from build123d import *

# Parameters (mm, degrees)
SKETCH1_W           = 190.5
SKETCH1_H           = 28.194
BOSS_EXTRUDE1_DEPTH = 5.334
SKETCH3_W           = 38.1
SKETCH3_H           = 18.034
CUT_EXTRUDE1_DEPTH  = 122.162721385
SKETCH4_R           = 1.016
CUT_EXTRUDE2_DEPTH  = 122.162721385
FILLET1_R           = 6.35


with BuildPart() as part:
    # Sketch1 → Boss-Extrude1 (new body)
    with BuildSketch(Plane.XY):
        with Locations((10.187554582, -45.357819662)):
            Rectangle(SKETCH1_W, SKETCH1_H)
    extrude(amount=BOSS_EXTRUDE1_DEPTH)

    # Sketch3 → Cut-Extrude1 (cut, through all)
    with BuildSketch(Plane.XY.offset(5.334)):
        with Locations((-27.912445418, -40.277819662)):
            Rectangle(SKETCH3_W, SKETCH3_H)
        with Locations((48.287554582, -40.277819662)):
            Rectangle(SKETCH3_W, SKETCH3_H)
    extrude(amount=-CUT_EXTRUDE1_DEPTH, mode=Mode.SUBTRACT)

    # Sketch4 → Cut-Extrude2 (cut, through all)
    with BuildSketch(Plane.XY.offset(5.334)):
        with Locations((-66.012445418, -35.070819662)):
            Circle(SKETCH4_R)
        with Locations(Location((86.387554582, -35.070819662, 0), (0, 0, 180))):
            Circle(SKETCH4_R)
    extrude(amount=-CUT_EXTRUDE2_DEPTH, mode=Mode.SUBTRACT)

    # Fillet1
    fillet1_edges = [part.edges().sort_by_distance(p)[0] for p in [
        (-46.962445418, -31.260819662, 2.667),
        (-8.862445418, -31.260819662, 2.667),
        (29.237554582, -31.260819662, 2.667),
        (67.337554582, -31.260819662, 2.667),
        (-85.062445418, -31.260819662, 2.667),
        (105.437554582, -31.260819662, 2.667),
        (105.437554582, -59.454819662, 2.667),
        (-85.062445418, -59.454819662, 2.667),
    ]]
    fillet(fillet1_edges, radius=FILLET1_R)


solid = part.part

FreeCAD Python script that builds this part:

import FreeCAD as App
import Part
import Sketcher
Q = App.Units.Quantity


def edges_at(feature, points):
    """Names of the edges that pass closest to the given points."""
    edges = feature.Shape.Edges
    near = lambda p: min(range(len(edges)), key=lambda i: edges[i].distToShape(Part.Vertex(*p))[0])
    return sorted({f"Edge{near(p) + 1}" for p in points})


def add_polygon(sketch, points):
    """Adds a closed chain of lines whose ends are joined by coincident constraints."""
    first, n = sketch.GeometryCount, len(points)
    for a, b in zip(points, points[1:] + points[:1]):
        sketch.addGeometry(Part.LineSegment(App.Vector(*a, 0), App.Vector(*b, 0)), False)
    for i in range(n):
        sketch.addConstraint(Sketcher.Constraint("Coincident", first + i, 2, first + (i + 1) % n, 1))

doc = App.newDocument("Part")
body = doc.addObject("PartDesign::Body", "Body")

sketch1 = doc.addObject("Sketcher::SketchObject", "Sketch")
body.addObject(sketch1)
sketch1.AttachmentSupport = (doc.XY_Plane, [""])
sketch1.MapMode = "FlatFace"
add_polygon(sketch1, [(-85, -31), (-85, -59), (105, -59), (105, -31)])
sketch1.addConstraint([
    Sketcher.Constraint("Vertical", 0),
    Sketcher.Constraint("Horizontal", 1),
    Sketcher.Constraint("Vertical", 2),
    Sketcher.Constraint("Horizontal", 3),
    Sketcher.Constraint("DistanceX", 1, 1, 1, 2, Q("7.5 in")),
    Sketcher.Constraint("DistanceY", 0, 2, 0, 1, Q("1.11 in")),
    Sketcher.Constraint("DistanceY", 0, 2, -1, 1, 59.45482),
    Sketcher.Constraint("DistanceX", 0, 2, -1, 1, 85.062445),
])
pad1 = doc.addObject("PartDesign::Pad", "Pad")
body.addObject(pad1)
pad1.Profile = sketch1
pad1.Length = Q("0.21 in")

sketch2 = doc.addObject("Sketcher::SketchObject", "Sketch001")
body.addObject(sketch2)
sketch2.AttachmentSupport = (doc.XY_Plane, [""])
sketch2.MapMode = "FlatFace"
sketch2.AttachmentOffset = App.Placement(App.Vector(0, 0, 0.21 * 25.4), App.Rotation())
add_polygon(sketch2, [(-47, -31), (-47, -49), (-9, -49), (-9, -31)])
add_polygon(sketch2, [(29, -31), (29, -49), (67, -49), (67, -31)])
sketch2.addConstraint([
    Sketcher.Constraint("Vertical", 0),
    Sketcher.Constraint("Horizontal", 1),
    Sketcher.Constraint("Vertical", 2),
    Sketcher.Constraint("Horizontal", 3),
    Sketcher.Constraint("Vertical", 4),
    Sketcher.Constraint("Horizontal", 5),
    Sketcher.Constraint("Vertical", 6),
    Sketcher.Constraint("Horizontal", 7),
    Sketcher.Constraint("Horizontal", 1, 2, 4, 2),
    Sketcher.Constraint("Horizontal", 3, 2, 6, 2),
    Sketcher.Constraint("Equal", 3, 5),
    Sketcher.Constraint("DistanceX", 1, 1, 1, 2, Q("1.5 in")),
    Sketcher.Constraint("DistanceX", 0, 2, 4, 2, Q("3 in")),
    Sketcher.Constraint("DistanceY", 0, 2, 0, 1, Q("0.71 in")),
    Sketcher.Constraint("DistanceY", 0, 2, -1, 1, 49.29482),
    Sketcher.Constraint("DistanceX", 0, 2, -1, 1, 46.962445),
])
pocket1 = doc.addObject("PartDesign::Pocket", "Pocket")
body.addObject(pocket1)
pocket1.Profile = sketch2
pocket1.Type = "ThroughAll"

sketch3 = doc.addObject("Sketcher::SketchObject", "Sketch002")
body.addObject(sketch3)
sketch3.AttachmentSupport = (doc.XY_Plane, [""])
sketch3.MapMode = "FlatFace"
sketch3.AttachmentOffset = App.Placement(App.Vector(0, 0, 0.21 * 25.4), App.Rotation())
sketch3.addGeometry([
    Part.Circle(App.Vector(-66, -35.1, 0), App.Vector(0, 0, 1), 1),
    Part.Circle(App.Vector(86.4, -35.1, 0), App.Vector(0, 0, 1), 1),
], False)
sketch3.addConstraint([
    Sketcher.Constraint("Equal", 0, 1),
    Sketcher.Constraint("Horizontal", 0, 3, 1, 3),
    Sketcher.Constraint("Diameter", 0, Q("0.08 in")),
    Sketcher.Constraint("DistanceX", 0, 3, 1, 3, Q("6 in")),
    Sketcher.Constraint("DistanceY", 0, 3, -1, 1, 35.07082),
    Sketcher.Constraint("DistanceX", 0, 3, -1, 1, 66.012445),
])
pocket2 = doc.addObject("PartDesign::Pocket", "Pocket001")
body.addObject(pocket2)
pocket2.Profile = sketch3
pocket2.Type = "ThroughAll"
doc.recompute()

fillet = doc.addObject("PartDesign::Fillet", "Fillet")
body.addObject(fillet)
fillet.Base = (pocket2, edges_at(pocket2, [
    (-46.962, -31.261, 2.667),
    (-8.862, -31.261, 2.667),
    (29.238, -31.261, 2.667),
    (67.338, -31.261, 2.667),
    (-85.062, -31.261, 2.667),
    (105.438, -31.261, 2.667),
    (105.438, -59.455, 2.667),
    (-85.062, -59.455, 2.667),
]))
fillet.Radius = Q("0.25 in")

doc.recompute()
